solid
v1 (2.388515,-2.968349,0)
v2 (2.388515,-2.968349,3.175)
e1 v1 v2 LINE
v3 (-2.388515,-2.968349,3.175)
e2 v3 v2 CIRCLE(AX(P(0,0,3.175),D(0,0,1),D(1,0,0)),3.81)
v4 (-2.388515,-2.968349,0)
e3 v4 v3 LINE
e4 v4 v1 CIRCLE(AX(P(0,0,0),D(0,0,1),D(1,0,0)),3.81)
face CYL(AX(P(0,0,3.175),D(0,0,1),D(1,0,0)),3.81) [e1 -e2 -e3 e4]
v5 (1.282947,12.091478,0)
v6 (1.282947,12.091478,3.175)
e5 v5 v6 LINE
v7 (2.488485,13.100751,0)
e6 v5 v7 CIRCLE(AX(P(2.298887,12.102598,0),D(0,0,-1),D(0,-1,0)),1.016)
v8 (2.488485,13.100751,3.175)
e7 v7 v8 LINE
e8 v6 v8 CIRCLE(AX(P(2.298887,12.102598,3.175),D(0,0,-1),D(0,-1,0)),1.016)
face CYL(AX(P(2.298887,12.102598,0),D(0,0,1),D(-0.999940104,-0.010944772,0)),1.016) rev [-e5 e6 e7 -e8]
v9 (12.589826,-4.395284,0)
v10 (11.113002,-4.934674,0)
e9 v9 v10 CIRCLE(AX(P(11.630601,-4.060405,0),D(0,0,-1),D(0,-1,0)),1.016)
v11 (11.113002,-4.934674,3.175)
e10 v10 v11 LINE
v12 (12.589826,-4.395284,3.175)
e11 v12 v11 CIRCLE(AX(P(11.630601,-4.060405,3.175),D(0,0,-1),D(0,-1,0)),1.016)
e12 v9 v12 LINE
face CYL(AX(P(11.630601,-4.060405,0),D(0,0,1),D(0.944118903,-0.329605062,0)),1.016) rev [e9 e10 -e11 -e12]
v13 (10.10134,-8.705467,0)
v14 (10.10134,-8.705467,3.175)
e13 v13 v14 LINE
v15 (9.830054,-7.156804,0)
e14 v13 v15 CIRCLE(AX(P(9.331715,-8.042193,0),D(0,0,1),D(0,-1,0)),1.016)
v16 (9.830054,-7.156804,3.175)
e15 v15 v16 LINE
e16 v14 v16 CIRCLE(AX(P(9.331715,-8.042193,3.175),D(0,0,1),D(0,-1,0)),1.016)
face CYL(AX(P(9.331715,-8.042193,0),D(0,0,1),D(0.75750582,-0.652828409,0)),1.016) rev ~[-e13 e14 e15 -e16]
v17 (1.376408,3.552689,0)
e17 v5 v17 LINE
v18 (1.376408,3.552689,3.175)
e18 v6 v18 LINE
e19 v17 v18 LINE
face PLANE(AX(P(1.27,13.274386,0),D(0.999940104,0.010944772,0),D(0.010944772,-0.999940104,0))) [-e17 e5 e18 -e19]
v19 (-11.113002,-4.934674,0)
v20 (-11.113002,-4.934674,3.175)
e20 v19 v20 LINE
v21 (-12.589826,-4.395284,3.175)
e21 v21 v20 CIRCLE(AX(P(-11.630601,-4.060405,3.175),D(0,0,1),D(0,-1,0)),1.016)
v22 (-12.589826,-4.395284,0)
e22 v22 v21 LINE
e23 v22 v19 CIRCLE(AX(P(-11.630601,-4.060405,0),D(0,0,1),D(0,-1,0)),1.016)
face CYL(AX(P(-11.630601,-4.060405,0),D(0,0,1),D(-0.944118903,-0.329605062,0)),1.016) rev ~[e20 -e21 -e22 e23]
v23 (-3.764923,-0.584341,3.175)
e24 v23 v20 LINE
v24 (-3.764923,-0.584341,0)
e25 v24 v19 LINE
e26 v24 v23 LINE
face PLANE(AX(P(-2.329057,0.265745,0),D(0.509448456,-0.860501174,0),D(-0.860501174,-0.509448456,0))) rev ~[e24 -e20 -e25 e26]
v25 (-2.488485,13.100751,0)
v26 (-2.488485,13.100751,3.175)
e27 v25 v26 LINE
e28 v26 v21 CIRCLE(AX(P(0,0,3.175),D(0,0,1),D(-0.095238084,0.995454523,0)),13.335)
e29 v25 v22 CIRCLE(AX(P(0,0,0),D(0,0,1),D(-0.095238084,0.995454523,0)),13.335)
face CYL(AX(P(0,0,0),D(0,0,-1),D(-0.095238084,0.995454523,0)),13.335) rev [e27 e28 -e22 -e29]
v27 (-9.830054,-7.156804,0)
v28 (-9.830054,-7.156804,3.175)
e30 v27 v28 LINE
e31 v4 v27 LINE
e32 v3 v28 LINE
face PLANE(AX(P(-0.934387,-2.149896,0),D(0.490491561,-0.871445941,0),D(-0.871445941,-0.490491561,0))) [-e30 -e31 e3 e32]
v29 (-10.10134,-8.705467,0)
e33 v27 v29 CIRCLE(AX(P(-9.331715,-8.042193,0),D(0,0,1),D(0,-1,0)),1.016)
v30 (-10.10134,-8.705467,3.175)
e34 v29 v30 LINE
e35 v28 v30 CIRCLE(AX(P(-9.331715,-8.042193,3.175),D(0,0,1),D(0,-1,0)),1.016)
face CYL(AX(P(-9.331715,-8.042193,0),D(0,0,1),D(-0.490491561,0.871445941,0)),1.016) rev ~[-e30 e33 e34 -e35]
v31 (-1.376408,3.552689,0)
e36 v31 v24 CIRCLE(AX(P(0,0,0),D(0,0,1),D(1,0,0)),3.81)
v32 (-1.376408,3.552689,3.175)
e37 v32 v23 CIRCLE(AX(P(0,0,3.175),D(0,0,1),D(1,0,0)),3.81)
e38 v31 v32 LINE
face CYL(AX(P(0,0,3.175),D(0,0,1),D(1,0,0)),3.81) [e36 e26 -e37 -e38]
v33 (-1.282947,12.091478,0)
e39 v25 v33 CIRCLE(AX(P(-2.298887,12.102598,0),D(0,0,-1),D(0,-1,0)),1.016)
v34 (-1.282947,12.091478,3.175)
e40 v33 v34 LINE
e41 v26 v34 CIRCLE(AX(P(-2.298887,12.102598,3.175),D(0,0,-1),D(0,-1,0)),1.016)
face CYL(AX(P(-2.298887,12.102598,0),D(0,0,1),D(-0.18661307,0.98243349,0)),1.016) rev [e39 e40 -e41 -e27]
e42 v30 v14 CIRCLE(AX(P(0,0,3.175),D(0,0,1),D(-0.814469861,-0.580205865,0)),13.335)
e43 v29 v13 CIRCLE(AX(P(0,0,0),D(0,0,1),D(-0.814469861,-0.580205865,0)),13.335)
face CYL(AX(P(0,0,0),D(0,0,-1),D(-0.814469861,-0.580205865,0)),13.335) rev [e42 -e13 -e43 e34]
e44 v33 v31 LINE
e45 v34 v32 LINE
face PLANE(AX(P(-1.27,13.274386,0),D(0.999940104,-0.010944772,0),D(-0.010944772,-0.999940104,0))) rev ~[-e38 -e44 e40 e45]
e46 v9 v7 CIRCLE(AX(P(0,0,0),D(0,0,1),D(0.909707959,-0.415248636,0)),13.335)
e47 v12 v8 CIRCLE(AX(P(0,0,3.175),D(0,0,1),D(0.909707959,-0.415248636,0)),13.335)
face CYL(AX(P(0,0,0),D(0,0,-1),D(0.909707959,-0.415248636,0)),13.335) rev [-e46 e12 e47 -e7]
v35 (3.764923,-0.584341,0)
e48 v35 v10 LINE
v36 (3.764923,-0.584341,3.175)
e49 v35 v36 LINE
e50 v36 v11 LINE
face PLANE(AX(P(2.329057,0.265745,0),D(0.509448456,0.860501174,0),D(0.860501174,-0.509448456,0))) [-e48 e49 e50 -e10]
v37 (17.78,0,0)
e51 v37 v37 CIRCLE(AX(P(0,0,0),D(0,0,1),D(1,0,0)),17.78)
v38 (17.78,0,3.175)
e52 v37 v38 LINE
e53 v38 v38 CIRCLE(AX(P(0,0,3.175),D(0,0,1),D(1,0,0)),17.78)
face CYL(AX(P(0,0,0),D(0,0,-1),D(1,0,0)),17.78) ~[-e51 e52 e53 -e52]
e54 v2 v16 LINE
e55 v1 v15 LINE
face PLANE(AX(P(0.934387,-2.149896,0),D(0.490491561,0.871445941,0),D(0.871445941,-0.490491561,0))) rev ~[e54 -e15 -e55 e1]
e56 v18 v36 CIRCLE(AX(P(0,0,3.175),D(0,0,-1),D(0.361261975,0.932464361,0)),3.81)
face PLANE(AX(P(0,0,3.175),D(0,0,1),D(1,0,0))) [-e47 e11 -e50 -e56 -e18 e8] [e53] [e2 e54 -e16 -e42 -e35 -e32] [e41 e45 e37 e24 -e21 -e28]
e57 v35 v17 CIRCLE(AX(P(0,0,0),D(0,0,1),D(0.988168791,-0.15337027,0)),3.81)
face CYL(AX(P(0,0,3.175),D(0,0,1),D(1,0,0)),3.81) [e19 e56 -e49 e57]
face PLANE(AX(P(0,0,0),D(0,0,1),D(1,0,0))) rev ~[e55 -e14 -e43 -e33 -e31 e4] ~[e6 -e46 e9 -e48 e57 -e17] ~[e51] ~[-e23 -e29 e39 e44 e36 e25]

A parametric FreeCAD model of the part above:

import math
import FreeCAD as App
import Part
import Sketcher
Q = App.Units.Quantity


def edges_at(feature, points):
    """Names of the edges that pass closest to the given points."""
    edges = feature.Shape.Edges
    near = lambda p: min(range(len(edges)), key=lambda i: edges[i].distToShape(Part.Vertex(*p))[0])
    return sorted({f"Edge{near(p) + 1}" for p in points})

doc = App.newDocument("Part")
params = doc.addObject("Spreadsheet::Sheet", "Params")
for row, (alias, value) in enumerate([
    ("sketch1_diameter", "1.4 in"),
    ("sketch1_radius", "0.0749999 in"),
    ("sketch1_radius2", "0.525 in"),
    ("pad1_length", "0.125 in"),
    ("fillet_radius", "0.04 in"),
    ("sketch2_diameter", "0.3 in"),
    ("pad2_length", "0.125 in"),
], start=1):
    params.set(f"A{row}", alias)
    params.set(f"B{row}", "=" + value)
    params.setAlias(f"B{row}", alias)

body = doc.addObject("PartDesign::Body", "Body")

sketch1 = doc.addObject("Sketcher::SketchObject", "Sketch")
body.addObject(sketch1)
sketch1.AttachmentSupport = (doc.XY_Plane, [""])
sketch1.MapMode = "FlatFace"
sketch1.addGeometry(Part.Circle(App.Vector(0, 0, 0), App.Vector(0, 0, 1), 17.8), False)
sketch1.addGeometry(Part.LineSegment(App.Vector(-10.9, -7.7, 0), App.Vector(-0.9, -2.1, 0)), False)
sketch1.addGeometry(Part.ArcOfCircle(Part.Circle(App.Vector(0, -3.8, 0), App.Vector(0, 0, 1), 1.9), math.radians(61), math.radians(119)), False)
sketch1.addGeometry(Part.LineSegment(App.Vector(0.9, -2.1, 0), App.Vector(10.9, -7.7, 0)), False)
sketch1.addGeometry(Part.ArcOfCircle(Part.Circle(App.Vector(0, 0, 0), App.Vector(0, 0, 1), 13.3), math.radians(-145), math.radians(-35)), False)
sketch1.addGeometry(Part.ArcOfCircle(Part.Circle(App.Vector(0, 0, 0), App.Vector(0, 0, 1), 13.3), math.radians(95), math.radians(205)), False)
sketch1.addGeometry(Part.LineSegment(App.Vector(-1.3, 13.3, 0), App.Vector(-1.4, 1.9, 0)), False)
sketch1.addGeometry(Part.ArcOfCircle(Part.Circle(App.Vector(-3.3, 1.9, 0), App.Vector(0, 0, 1), 1.9), math.radians(-59), math.radians(-1)), False)
sketch1.addGeometry(Part.LineSegment(App.Vector(-2.3, 0.3, 0), App.Vector(-12.1, -5.5, 0)), False)
sketch1.addGeometry(Part.LineSegment(App.Vector(1.4, 1.9, 0), App.Vector(1.3, 13.3, 0)), False)
sketch1.addGeometry(Part.ArcOfCircle(Part.Circle(App.Vector(0, 0, 0), App.Vector(0, 0, 1), 13.3), math.radians(-25), math.radians(85)), False)
sketch1.addGeometry(Part.LineSegment(App.Vector(12.1, -5.5, 0), App.Vector(2.3, 0.3, 0)), False)
sketch1.addGeometry(Part.ArcOfCircle(Part.Circle(App.Vector(3.3, 1.9, 0), App.Vector(0, 0, 1), 1.9), math.radians(-179), math.radians(-121)), False)
sketch1.addConstraint(Sketcher.Constraint("Tangent", 1, 2, 2, 2))
sketch1.addConstraint(Sketcher.Constraint("Tangent", 2, 1, 3, 1))
sketch1.addConstraint(Sketcher.Constraint("Coincident", 3, 2, 4, 2))
sketch1.addConstraint(Sketcher.Constraint("Coincident", 4, 1, 1, 1))
sketch1.addConstraint(Sketcher.Constraint("Coincident", 5, 1, 6, 1))
sketch1.addConstraint(Sketcher.Constraint("Tangent", 6, 2, 7, 2))
sketch1.addConstraint(Sketcher.Constraint("Tangent", 7, 1, 8, 1))
sketch1.addConstraint(Sketcher.Constraint("Coincident", 8, 2, 5, 2))
sketch1.addConstraint(Sketcher.Constraint("Coincident", 9, 2, 10, 2))
sketch1.addConstraint(Sketcher.Constraint("Coincident", 10, 1, 11, 1))
sketch1.addConstraint(Sketcher.Constraint("Tangent", 11, 2, 12, 2))
sketch1.addConstraint(Sketcher.Constraint("Tangent", 12, 1, 9, 1))
sketch1.addConstraint(Sketcher.Constraint("Coincident", 0, 3, -1, 1))
sketch1.addConstraint(Sketcher.Constraint("Coincident", 4, 3, -1, 1))
sketch1.addConstraint(Sketcher.Constraint("Coincident", 5, 3, -1, 1))
sketch1.addConstraint(Sketcher.Constraint("Coincident", 10, 3, -1, 1))
sketch1.addConstraint(Sketcher.Constraint("Equal", 4, 5))
sketch1.addConstraint(Sketcher.Constraint("Equal", 2, 7))
sketch1.addConstraint(Sketcher.Constraint("Equal", 5, 10))
sketch1.addConstraint(Sketcher.Constraint("Equal", 7, 12))
sketch1.addConstraint(Sketcher.Constraint("Symmetric", 7, 3, 12, 3, -2))
sketch1.addConstraint(Sketcher.Constraint("Symmetric", 1, 2, 2, 1, -2))
sketch1.addConstraint(Sketcher.Constraint("Horizontal", 5, 1, 9, 2))
sketch1.addConstraint(Sketcher.Constraint("Horizontal", 8, 2, 10, 1))
sketch1.addConstraint(Sketcher.Constraint("Equal", 3, 6))
sketch1.addConstraint(Sketcher.Constraint("Equal", 6, 8))
sketch1.addConstraint(Sketcher.Constraint("Diameter", 0, Q("1.4 in")))
sketch1.addConstraint(Sketcher.Constraint("Radius", 2, Q("0.0749999 in")))
sketch1.addConstraint(Sketcher.Constraint("Radius", 4, Q("0.525 in")))
sketch1.addConstraint(Sketcher.Constraint("DistanceX", 5, 1, 9, 2, Q("0.1 in")))
sketch1.addConstraint(Sketcher.Constraint("DistanceY", 2, 3, -1, 1, Q("0.1499999 in")))
sketch1.addConstraint(Sketcher.Constraint("DistanceX", 8, 2, 4, 1, Q("0.05 in")))
sketch1.addConstraint(Sketcher.Constraint("DistanceY", -1, 1, 7, 3, Q("0.075 in")))
sketch1.setExpression("Constraints[26]", "Params.sketch1_diameter")
sketch1.setExpression("Constraints[27]", "Params.sketch1_radius")
sketch1.setExpression("Constraints[28]", "Params.sketch1_radius2")
pad1 = doc.addObject("PartDesign::Pad", "Pad")
body.addObject(pad1)
pad1.Profile = sketch1
pad1.setExpression("Length", "Params.pad1_length")
doc.recompute()

fillet = doc.addObject("PartDesign::Fillet", "Fillet")
body.addObject(fillet)
fillet.Base = (pad1, edges_at(pad1, [
    (-12.131, -5.537, 1.587),
    (-1.27, 13.274, 1.587),
    (1.27, 13.274, 1.587),
    (-10.861, -7.737, 1.587),
    (10.861, -7.737, 1.587),
    (12.131, -5.537, 1.587),
]))
fillet.setExpression("Radius", "Params.fillet_radius")

sketch2 = doc.addObject("Sketcher::SketchObject", "Sketch001")
body.addObject(sketch2)
sketch2.AttachmentSupport = (doc.XY_Plane, [""])
sketch2.MapMode = "FlatFace"
sketch2.AttachmentOffset = App.Placement(App.Vector(0, 0, 0.125 * 25.4), App.Rotation())
sketch2.addGeometry(Part.Circle(App.Vector(0, 0, 0), App.Vector(0, 0, 1), 3.8), False)
sketch2.addConstraint(Sketcher.Constraint("Coincident", 0, 3, -1, 1))
sketch2.addConstraint(Sketcher.Constraint("Diameter", 0, Q("0.3 in")))
sketch2.setExpression("Constraints[1]", "Params.sketch2_diameter")
pad2 = doc.addObject("PartDesign::Pad", "Pad001")
body.addObject(pad2)
pad2.Profile = sketch2
pad2.setExpression("Length", "Params.pad2_length")
pad2.Reversed = True

doc.recompute()
